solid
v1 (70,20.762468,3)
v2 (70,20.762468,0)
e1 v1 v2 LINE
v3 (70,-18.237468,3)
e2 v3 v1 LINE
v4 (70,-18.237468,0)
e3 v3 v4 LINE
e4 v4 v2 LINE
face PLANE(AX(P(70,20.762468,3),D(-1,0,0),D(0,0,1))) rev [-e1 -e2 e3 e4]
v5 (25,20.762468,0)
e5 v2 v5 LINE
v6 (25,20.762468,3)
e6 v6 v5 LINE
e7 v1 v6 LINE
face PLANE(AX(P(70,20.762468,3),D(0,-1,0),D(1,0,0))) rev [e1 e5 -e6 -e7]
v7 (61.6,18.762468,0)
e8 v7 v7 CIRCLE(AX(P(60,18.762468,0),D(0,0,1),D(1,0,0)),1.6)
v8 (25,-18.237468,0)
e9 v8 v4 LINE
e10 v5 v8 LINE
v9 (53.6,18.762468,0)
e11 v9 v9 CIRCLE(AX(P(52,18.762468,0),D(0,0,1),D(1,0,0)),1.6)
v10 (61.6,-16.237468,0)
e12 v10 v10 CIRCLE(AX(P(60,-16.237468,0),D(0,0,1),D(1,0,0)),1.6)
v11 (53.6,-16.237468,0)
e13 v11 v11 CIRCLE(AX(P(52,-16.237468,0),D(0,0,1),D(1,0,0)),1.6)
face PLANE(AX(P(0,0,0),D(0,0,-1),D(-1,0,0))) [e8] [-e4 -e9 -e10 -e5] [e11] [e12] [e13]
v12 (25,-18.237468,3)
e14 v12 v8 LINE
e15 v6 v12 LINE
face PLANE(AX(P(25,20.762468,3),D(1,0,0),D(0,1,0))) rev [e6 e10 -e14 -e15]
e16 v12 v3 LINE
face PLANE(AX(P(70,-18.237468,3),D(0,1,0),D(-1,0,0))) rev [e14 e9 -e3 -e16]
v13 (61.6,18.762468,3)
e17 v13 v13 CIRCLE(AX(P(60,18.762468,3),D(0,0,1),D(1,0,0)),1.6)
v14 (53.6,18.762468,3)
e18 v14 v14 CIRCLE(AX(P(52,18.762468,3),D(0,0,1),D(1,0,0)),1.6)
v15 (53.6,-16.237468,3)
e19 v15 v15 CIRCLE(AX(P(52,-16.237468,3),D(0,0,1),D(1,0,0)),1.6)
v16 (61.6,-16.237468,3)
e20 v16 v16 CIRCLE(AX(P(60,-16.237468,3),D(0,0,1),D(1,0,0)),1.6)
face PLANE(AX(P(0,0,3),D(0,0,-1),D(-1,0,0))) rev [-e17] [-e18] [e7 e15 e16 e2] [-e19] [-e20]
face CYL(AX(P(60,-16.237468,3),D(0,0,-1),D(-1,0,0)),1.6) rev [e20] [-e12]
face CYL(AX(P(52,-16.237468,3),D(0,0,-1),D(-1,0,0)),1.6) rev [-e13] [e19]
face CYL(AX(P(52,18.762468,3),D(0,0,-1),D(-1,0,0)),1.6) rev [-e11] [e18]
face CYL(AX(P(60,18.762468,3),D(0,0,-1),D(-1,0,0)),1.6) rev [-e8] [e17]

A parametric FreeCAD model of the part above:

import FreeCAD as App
import Part
import Sketcher


def add_polygon(sketch, points):
    """Adds a closed chain of lines whose ends are joined by coincident constraints."""
    first, n = sketch.GeometryCount, len(points)
    for a, b in zip(points, points[1:] + points[:1]):
        sketch.addGeometry(Part.LineSegment(App.Vector(*a, 0), App.Vector(*b, 0)), False)
    for i in range(n):
        sketch.addConstraint(Sketcher.Constraint("Coincident", first + i, 2, first + (i + 1) % n, 1))

doc = App.newDocument("Part")
body = doc.addObject("PartDesign::Body", "Body")

# Sketch on XY plane
sketch1 = doc.addObject("Sketcher::SketchObject", "Sketch")
body.addObject(sketch1)
sketch1.AttachmentSupport = (doc.XY_Plane, [""])
sketch1.MapMode = "FlatFace"
add_polygon(sketch1, [(25, 20.8), (25, -18.2), (70, -18.2), (70, 20.8)])  # lines 0-3
sketch1.addGeometry(Part.Circle(App.Vector(52, -16.2, 0), App.Vector(0, 0, 1), 1.6), False)  # 4
sketch1.addGeometry(Part.Circle(App.Vector(60, -16.2, 0), App.Vector(0, 0, 1), 1.6), False)  # 5
sketch1.addGeometry(Part.Circle(App.Vector(52, 18.8, 0), App.Vector(0, 0, 1), 1.6), False)  # 6
sketch1.addGeometry(Part.Circle(App.Vector(60, 18.8, 0), App.Vector(0, 0, 1), 1.6), False)  # 7
sketch1.addConstraint([
    Sketcher.Constraint("Vertical", 0),
    Sketcher.Constraint("Horizontal", 1),
    Sketcher.Constraint("Vertical", 2),
    Sketcher.Constraint("Horizontal", 3),
    Sketcher.Constraint("Equal", 4, 5),
    Sketcher.Constraint("Equal", 5, 6),
    Sketcher.Constraint("Equal", 6, 7),
    Sketcher.Constraint("Horizontal", 4, 3, 5, 3),
    Sketcher.Constraint("Horizontal", 6, 3, 7, 3),
    Sketcher.Constraint("Vertical", 4, 3, 6, 3),
    Sketcher.Constraint("Vertical", 5, 3, 7, 3),
    Sketcher.Constraint("Diameter", 4, 3.2),
    Sketcher.Constraint("DistanceX", 1, 1, 1, 2, 45.0),
    Sketcher.Constraint("DistanceX", -1, 1, 4, 3, 52.0),
    Sketcher.Constraint("DistanceX", -1, 1, 5, 3, 60.0),
    Sketcher.Constraint("DistanceX", -1, 1, 0, 2, 25.0),
    Sketcher.Constraint("DistanceY", 0, 2, 4, 3, 2.0),
    Sketcher.Constraint("DistanceY", 7, 3, 2, 2, 2.0),
    Sketcher.Constraint("DistanceY", 0, 2, 0, 1, 38.999937),
    Sketcher.Constraint("DistanceY", 4, 3, -1, 1, 16.237468),
])
pad1 = doc.addObject("PartDesign::Pad", "Pad")
body.addObject(pad1)
pad1.Profile = sketch1
pad1.Length = 3

doc.recompute()
